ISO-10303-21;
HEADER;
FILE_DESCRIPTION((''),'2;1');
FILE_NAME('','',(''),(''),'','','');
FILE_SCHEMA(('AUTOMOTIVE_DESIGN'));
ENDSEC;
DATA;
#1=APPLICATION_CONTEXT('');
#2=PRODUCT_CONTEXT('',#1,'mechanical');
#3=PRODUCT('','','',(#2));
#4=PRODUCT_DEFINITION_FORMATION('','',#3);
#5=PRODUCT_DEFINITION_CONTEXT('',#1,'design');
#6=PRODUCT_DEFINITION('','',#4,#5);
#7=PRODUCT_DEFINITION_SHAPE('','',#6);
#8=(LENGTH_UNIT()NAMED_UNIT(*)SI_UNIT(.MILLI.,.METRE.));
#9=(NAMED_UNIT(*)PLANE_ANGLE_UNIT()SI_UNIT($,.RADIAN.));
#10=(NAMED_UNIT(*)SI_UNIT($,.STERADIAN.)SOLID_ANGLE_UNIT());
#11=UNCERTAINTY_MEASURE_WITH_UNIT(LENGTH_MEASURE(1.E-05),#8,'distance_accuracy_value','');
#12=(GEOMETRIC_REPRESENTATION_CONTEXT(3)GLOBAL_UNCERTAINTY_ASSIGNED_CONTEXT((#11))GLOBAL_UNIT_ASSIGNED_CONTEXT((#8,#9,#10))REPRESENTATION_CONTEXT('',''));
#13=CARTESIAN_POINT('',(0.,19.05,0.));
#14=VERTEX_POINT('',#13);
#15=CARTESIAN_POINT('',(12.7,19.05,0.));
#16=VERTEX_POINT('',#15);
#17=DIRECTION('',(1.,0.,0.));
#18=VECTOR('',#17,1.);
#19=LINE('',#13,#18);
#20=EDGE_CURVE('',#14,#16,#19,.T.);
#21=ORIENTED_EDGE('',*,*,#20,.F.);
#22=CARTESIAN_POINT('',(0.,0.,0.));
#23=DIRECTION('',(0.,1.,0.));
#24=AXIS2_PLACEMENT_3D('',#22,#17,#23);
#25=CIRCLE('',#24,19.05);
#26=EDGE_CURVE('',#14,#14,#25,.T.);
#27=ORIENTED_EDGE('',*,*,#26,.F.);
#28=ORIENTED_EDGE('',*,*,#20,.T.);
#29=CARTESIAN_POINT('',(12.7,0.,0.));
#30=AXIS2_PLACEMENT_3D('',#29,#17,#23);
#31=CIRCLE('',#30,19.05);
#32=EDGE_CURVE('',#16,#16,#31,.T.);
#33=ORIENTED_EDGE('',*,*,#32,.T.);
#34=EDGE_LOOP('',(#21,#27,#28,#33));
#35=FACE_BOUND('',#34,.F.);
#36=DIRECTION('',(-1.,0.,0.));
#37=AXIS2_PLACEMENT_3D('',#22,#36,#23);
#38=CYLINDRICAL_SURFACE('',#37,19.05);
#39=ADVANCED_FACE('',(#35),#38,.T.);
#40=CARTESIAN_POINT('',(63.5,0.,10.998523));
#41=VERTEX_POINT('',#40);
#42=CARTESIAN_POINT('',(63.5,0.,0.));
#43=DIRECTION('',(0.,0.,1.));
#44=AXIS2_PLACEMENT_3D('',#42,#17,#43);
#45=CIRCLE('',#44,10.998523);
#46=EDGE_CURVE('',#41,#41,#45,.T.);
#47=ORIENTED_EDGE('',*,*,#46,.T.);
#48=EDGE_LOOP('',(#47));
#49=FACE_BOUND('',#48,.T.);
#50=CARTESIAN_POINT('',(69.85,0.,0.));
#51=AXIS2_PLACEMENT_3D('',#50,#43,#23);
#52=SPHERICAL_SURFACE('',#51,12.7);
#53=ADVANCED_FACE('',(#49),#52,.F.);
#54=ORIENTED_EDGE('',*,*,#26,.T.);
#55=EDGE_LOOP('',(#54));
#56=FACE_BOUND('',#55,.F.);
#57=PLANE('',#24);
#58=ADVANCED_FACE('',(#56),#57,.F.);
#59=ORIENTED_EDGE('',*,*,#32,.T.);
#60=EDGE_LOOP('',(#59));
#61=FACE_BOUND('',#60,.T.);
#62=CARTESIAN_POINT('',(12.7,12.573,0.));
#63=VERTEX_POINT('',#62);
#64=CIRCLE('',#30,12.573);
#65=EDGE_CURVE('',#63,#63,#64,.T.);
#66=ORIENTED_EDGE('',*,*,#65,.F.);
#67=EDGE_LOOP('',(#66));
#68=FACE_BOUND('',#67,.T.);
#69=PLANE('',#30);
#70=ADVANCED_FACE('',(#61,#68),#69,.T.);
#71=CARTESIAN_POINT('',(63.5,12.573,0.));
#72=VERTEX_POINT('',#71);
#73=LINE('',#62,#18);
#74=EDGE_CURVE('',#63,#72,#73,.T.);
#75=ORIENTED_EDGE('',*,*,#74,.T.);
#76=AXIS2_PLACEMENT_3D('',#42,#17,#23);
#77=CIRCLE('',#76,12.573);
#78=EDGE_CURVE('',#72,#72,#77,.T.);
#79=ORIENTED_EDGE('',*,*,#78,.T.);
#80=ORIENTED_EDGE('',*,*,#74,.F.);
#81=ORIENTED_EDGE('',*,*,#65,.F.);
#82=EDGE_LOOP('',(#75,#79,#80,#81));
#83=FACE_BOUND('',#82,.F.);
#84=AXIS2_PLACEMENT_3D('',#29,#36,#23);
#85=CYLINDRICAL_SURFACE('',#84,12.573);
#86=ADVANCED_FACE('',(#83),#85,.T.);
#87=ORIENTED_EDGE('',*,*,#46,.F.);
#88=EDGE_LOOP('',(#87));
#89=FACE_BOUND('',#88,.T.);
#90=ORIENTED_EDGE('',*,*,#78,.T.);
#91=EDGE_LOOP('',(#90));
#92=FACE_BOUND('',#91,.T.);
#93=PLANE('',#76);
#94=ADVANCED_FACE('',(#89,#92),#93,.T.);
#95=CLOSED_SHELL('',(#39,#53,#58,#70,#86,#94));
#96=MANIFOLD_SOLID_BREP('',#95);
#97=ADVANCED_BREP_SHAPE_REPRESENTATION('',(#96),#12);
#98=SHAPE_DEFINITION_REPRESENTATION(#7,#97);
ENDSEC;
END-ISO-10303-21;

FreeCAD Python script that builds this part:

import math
import FreeCAD as App
import Part
import Sketcher
Q = App.Units.Quantity

doc = App.newDocument("Part")
body = doc.addObject("PartDesign::Body", "Body")

sketch1 = body.newObject("Sketcher::SketchObject", "Sketch")
sketch1.AttachmentSupport = (doc.getObject("YZ_Plane"), [""])
sketch1.MapMode = "FlatFace"
sketch1.addGeometry(Part.Circle(App.Vector(0, 0, 0), App.Vector(0, 0, 1), 19), False)
sketch1.addConstraint(Sketcher.Constraint("Coincident", 0, 3, -1, 1))
sketch1.addConstraint(Sketcher.Constraint("Diameter", 0, Q("1.5 in")))
pad1 = body.newObject("PartDesign::Pad", "Pad")
pad1.Profile = sketch1
pad1.Length = Q("0.5 in")

sketch2 = body.newObject("Sketcher::SketchObject", "Sketch001")
sketch2.AttachmentSupport = (doc.getObject("YZ_Plane"), [""])
sketch2.MapMode = "FlatFace"
sketch2.AttachmentOffset = App.Placement(App.Vector(0, 0, 0.5 * 25.4), App.Rotation())
sketch2.addGeometry(Part.Circle(App.Vector(0, 0, 0), App.Vector(0, 0, 1), 13), False)
sketch2.addConstraint(Sketcher.Constraint("Coincident", 0, 3, -1, 1))
sketch2.addConstraint(Sketcher.Constraint("Diameter", 0, Q("0.99 in")))
pad2 = body.newObject("PartDesign::Pad", "Pad001")
pad2.Profile = sketch2
pad2.Length = Q("2 in")

sketch3 = body.newObject("Sketcher::SketchObject", "Sketch002")
sketch3.AttachmentSupport = (doc.getObject("YZ_Plane"), [""])
sketch3.MapMode = "FlatFace"
sketch3.AttachmentOffset = App.Placement(App.Vector(0, 0, 2.75 * 25.4), App.Rotation())
sketch3.addGeometry(Part.LineSegment(App.Vector(0, 13, 0), App.Vector(0, -13, 0)), False)
sketch3.addGeometry(Part.ArcOfCircle(Part.Circle(App.Vector(0, 0, 0), App.Vector(0, 0, 1), 13), math.radians(-90), math.radians(90)), False)
sketch3.addConstraint(Sketcher.Constraint("Coincident", 0, 1, 1, 2))
sketch3.addConstraint(Sketcher.Constraint("Coincident", 1, 1, 0, 2))
sketch3.addConstraint(Sketcher.Constraint("Vertical", 0))
sketch3.addConstraint(Sketcher.Constraint("Coincident", 1, 3, -1, 1))
sketch3.addConstraint(Sketcher.Constraint("PointOnObject", 0, 1, -2))
sketch3.addConstraint(Sketcher.Constraint("Radius", 1, Q("0.5 in")))
groove = body.newObject("PartDesign::Groove", "Groove")
groove.Profile = sketch3
groove.ReferenceAxis = (sketch3, ["V_Axis"])
groove.Angle = 360

doc.recompute()
